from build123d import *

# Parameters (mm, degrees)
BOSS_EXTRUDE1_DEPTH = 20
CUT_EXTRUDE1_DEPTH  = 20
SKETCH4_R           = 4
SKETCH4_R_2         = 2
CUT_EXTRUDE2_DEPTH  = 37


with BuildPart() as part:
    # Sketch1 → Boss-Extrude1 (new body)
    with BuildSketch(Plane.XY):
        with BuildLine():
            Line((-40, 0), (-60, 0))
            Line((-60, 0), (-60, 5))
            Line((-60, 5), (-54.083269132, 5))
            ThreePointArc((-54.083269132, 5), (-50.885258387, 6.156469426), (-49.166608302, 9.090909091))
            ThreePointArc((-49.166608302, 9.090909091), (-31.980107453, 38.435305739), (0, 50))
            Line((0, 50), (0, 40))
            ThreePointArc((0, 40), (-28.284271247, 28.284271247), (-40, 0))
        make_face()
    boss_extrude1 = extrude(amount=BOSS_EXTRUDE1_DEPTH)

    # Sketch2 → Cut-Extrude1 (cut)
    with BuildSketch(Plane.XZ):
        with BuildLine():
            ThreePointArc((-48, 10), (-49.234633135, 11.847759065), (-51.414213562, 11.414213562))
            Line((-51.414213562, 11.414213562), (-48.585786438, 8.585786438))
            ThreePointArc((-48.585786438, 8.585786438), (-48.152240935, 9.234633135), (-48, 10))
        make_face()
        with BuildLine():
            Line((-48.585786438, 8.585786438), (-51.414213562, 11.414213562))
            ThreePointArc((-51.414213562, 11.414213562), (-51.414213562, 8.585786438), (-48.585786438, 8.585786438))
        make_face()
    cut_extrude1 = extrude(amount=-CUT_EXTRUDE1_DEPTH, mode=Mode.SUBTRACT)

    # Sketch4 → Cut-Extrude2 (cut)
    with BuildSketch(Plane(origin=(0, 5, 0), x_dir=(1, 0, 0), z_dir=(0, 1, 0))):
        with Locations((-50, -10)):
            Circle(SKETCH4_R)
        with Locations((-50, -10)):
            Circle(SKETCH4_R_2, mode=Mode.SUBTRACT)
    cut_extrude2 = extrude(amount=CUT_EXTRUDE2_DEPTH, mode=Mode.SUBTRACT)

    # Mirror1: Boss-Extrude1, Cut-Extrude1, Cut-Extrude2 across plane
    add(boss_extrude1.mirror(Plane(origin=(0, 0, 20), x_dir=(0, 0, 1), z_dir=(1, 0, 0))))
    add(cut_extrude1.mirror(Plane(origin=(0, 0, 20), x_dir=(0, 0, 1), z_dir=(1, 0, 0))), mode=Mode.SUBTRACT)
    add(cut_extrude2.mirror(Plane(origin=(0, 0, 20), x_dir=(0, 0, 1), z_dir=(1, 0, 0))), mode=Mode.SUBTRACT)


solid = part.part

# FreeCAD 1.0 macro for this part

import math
import FreeCAD as App
import Part
import Sketcher
from FreeCAD import Vector
Q = App.Units.Quantity

doc = App.newDocument("Part")
params = doc.addObject("Spreadsheet::Sheet", "Params")
for row, (alias, value) in enumerate([
    ("sketch1_radius", "40 mm"),
    ("sketch1_radius2", "50 mm"),
    ("sketch1_radius3", "5 mm"),
    ("sketch1_width", "20 mm"),
    ("sketch1_height", "5 mm"),
    ("pad1_length", "20 mm"),
    ("sketch2_radius", "2 mm"),
    ("pocket1_length", "20 mm"),
    ("sketch3_diameter", "8 mm"),
    ("sketch3_diameter2", "4 mm"),
    ("pocket2_length", "37 mm"),
], start=1):
    params.set(f"A{row}", alias)
    params.set(f"B{row}", "=" + value)
    params.setAlias(f"B{row}", alias)

body = doc.addObject("PartDesign::Body", "Body")

sketch1 = body.newObject("Sketcher::SketchObject", "Sketch")
sketch1.AttachmentSupport = (doc.getObject("XY_Plane"), [""])
sketch1.MapMode = "FlatFace"
sketch1.addGeometry([
    Part.LineSegment(Vector(-60, 0, 0), Vector(-40, 0, 0)),
    Part.ArcOfCircle(Part.Circle(Vector(0, 0, 0), Vector(0, 0, 1), 40), math.radians(90), math.radians(180)),
    Part.LineSegment(Vector(0, 40, 0), Vector(0, 50, 0)),
    Part.ArcOfCircle(Part.Circle(Vector(0, 0, 0), Vector(0, 0, 1), 50), math.radians(90), math.radians(170)),
    Part.ArcOfCircle(Part.Circle(Vector(-54, 10, 0), Vector(0, 0, 1), 5), math.radians(-90), math.radians(-10)),
    Part.LineSegment(Vector(-54, 5, 0), Vector(-60, 5, 0)),
    Part.LineSegment(Vector(-60, 5, 0), Vector(-60, 0, 0)),
], False)
sketch1.addConstraint([
    Sketcher.Constraint("Coincident", 0, 2, 1, 2),
    Sketcher.Constraint("Coincident", 1, 1, 2, 1),
    Sketcher.Constraint("Coincident", 2, 2, 3, 1),
    Sketcher.Constraint("Tangent", 3, 2, 4, 2),
    Sketcher.Constraint("Tangent", 4, 1, 5, 1),
    Sketcher.Constraint("Coincident", 5, 2, 6, 1),
    Sketcher.Constraint("Coincident", 6, 2, 0, 1),
    Sketcher.Constraint("Horizontal", 0),
    Sketcher.Constraint("Vertical", 2),
    Sketcher.Constraint("Horizontal", 5),
    Sketcher.Constraint("Vertical", 6),
    Sketcher.Constraint("Coincident", 1, 3, -1, 1),
    Sketcher.Constraint("Coincident", 3, 3, -1, 1),
    Sketcher.Constraint("PointOnObject", 0, 2, -1),
    Sketcher.Constraint("PointOnObject", 1, 1, -2),
    Sketcher.Constraint("Radius", 1, Q("40 mm")),
    Sketcher.Constraint("Radius", 3, Q("50 mm")),
    Sketcher.Constraint("Radius", 4, Q("5 mm")),
    Sketcher.Constraint("DistanceX", 0, 1, 0, 2, Q("20 mm")),
    Sketcher.Constraint("DistanceY", 6, 2, 6, 1, Q("5 mm")),
])
sketch1.setExpression("Constraints[15]", "Params.sketch1_radius")
sketch1.setExpression("Constraints[16]", "Params.sketch1_radius2")
sketch1.setExpression("Constraints[17]", "Params.sketch1_radius3")
sketch1.setExpression("Constraints[18]", "Params.sketch1_width")
sketch1.setExpression("Constraints[19]", "Params.sketch1_height")
pad1 = body.newObject("PartDesign::Pad", "Pad")
pad1.Profile = sketch1
pad1.setExpression("Length", "Params.pad1_length")

sketch2 = body.newObject("Sketcher::SketchObject", "Sketch001")
sketch2.AttachmentSupport = (doc.getObject("XZ_Plane"), [""])
sketch2.MapMode = "FlatFace"
sketch2.addGeometry([
    Part.ArcOfCircle(Part.Circle(Vector(-50, 10, 0), Vector(0, 0, 1), 2), math.radians(0), math.radians(135)),
    Part.ArcOfCircle(Part.Circle(Vector(-50, 10, 0), Vector(0, 0, 1), 2), math.radians(135), math.radians(315)),
    Part.ArcOfCircle(Part.Circle(Vector(-50, 10, 0), Vector(0, 0, 1), 2), math.radians(-45), math.radians(0)),
], False)
sketch2.addConstraint([
    Sketcher.Constraint("Tangent", 0, 2, 1, 1),
    Sketcher.Constraint("Tangent", 1, 2, 2, 1),
    Sketcher.Constraint("Tangent", 2, 2, 0, 1),
    Sketcher.Constraint("Horizontal", 1, 3, 2, 2),
    Sketcher.Constraint("Radius", 0, Q("2 mm")),
    Sketcher.Constraint("DistanceX", 0, 3, -1, 1, Q("50 mm")),
    Sketcher.Constraint("DistanceY", -1, 1, 0, 3, Q("10 mm")),
    Sketcher.Constraint("DistanceX", 0, 2, -1, 1, Q("51.414214 mm")),
    Sketcher.Constraint("DistanceX", 1, 2, -1, 1, Q("48.585786 mm")),
])
sketch2.setExpression("Constraints[4]", "Params.sketch2_radius")
pocket1 = body.newObject("PartDesign::Pocket", "Pocket")
pocket1.Profile = sketch2
pocket1.setExpression("Length", "Params.pocket1_length")

sketch3 = body.newObject("Sketcher::SketchObject", "Sketch002")
sketch3.AttachmentSupport = (doc.getObject("XZ_Plane"), [""])
sketch3.MapMode = "FlatFace"
sketch3.AttachmentOffset = App.Placement(Vector(0, 0, -5), App.Rotation())
sketch3.addGeometry([
    Part.Circle(Vector(-50, 10, 0), Vector(0, 0, 1), 4),
    Part.Circle(Vector(-50, 10, 0), Vector(0, 0, 1), 2),
], False)
sketch3.addConstraint([
    Sketcher.Constraint("Coincident", 1, 3, 0, 3),
    Sketcher.Constraint("Diameter", 0, Q("8 mm")),
    Sketcher.Constraint("Diameter", 1, Q("4 mm")),
    Sketcher.Constraint("DistanceX", 0, 3, -1, 1, Q("50 mm")),
    Sketcher.Constraint("DistanceY", -1, 1, 0, 3, Q("10 mm")),
])
sketch3.setExpression("Constraints[1]", "Params.sketch3_diameter")
sketch3.setExpression("Constraints[2]", "Params.sketch3_diameter2")
pocket2 = body.newObject("PartDesign::Pocket", "Pocket001")
pocket2.Profile = sketch3
pocket2.setExpression("Length", "Params.pocket2_length")
doc.recompute()

mirrored = body.newObject("PartDesign::Mirrored", "Mirrored")
mirrored.Originals = [pad1, pocket1, pocket2]
mirrored.MirrorPlane = (doc.getObject("YZ_Plane"), [""])
body.Tip = mirrored

doc.recompute()
